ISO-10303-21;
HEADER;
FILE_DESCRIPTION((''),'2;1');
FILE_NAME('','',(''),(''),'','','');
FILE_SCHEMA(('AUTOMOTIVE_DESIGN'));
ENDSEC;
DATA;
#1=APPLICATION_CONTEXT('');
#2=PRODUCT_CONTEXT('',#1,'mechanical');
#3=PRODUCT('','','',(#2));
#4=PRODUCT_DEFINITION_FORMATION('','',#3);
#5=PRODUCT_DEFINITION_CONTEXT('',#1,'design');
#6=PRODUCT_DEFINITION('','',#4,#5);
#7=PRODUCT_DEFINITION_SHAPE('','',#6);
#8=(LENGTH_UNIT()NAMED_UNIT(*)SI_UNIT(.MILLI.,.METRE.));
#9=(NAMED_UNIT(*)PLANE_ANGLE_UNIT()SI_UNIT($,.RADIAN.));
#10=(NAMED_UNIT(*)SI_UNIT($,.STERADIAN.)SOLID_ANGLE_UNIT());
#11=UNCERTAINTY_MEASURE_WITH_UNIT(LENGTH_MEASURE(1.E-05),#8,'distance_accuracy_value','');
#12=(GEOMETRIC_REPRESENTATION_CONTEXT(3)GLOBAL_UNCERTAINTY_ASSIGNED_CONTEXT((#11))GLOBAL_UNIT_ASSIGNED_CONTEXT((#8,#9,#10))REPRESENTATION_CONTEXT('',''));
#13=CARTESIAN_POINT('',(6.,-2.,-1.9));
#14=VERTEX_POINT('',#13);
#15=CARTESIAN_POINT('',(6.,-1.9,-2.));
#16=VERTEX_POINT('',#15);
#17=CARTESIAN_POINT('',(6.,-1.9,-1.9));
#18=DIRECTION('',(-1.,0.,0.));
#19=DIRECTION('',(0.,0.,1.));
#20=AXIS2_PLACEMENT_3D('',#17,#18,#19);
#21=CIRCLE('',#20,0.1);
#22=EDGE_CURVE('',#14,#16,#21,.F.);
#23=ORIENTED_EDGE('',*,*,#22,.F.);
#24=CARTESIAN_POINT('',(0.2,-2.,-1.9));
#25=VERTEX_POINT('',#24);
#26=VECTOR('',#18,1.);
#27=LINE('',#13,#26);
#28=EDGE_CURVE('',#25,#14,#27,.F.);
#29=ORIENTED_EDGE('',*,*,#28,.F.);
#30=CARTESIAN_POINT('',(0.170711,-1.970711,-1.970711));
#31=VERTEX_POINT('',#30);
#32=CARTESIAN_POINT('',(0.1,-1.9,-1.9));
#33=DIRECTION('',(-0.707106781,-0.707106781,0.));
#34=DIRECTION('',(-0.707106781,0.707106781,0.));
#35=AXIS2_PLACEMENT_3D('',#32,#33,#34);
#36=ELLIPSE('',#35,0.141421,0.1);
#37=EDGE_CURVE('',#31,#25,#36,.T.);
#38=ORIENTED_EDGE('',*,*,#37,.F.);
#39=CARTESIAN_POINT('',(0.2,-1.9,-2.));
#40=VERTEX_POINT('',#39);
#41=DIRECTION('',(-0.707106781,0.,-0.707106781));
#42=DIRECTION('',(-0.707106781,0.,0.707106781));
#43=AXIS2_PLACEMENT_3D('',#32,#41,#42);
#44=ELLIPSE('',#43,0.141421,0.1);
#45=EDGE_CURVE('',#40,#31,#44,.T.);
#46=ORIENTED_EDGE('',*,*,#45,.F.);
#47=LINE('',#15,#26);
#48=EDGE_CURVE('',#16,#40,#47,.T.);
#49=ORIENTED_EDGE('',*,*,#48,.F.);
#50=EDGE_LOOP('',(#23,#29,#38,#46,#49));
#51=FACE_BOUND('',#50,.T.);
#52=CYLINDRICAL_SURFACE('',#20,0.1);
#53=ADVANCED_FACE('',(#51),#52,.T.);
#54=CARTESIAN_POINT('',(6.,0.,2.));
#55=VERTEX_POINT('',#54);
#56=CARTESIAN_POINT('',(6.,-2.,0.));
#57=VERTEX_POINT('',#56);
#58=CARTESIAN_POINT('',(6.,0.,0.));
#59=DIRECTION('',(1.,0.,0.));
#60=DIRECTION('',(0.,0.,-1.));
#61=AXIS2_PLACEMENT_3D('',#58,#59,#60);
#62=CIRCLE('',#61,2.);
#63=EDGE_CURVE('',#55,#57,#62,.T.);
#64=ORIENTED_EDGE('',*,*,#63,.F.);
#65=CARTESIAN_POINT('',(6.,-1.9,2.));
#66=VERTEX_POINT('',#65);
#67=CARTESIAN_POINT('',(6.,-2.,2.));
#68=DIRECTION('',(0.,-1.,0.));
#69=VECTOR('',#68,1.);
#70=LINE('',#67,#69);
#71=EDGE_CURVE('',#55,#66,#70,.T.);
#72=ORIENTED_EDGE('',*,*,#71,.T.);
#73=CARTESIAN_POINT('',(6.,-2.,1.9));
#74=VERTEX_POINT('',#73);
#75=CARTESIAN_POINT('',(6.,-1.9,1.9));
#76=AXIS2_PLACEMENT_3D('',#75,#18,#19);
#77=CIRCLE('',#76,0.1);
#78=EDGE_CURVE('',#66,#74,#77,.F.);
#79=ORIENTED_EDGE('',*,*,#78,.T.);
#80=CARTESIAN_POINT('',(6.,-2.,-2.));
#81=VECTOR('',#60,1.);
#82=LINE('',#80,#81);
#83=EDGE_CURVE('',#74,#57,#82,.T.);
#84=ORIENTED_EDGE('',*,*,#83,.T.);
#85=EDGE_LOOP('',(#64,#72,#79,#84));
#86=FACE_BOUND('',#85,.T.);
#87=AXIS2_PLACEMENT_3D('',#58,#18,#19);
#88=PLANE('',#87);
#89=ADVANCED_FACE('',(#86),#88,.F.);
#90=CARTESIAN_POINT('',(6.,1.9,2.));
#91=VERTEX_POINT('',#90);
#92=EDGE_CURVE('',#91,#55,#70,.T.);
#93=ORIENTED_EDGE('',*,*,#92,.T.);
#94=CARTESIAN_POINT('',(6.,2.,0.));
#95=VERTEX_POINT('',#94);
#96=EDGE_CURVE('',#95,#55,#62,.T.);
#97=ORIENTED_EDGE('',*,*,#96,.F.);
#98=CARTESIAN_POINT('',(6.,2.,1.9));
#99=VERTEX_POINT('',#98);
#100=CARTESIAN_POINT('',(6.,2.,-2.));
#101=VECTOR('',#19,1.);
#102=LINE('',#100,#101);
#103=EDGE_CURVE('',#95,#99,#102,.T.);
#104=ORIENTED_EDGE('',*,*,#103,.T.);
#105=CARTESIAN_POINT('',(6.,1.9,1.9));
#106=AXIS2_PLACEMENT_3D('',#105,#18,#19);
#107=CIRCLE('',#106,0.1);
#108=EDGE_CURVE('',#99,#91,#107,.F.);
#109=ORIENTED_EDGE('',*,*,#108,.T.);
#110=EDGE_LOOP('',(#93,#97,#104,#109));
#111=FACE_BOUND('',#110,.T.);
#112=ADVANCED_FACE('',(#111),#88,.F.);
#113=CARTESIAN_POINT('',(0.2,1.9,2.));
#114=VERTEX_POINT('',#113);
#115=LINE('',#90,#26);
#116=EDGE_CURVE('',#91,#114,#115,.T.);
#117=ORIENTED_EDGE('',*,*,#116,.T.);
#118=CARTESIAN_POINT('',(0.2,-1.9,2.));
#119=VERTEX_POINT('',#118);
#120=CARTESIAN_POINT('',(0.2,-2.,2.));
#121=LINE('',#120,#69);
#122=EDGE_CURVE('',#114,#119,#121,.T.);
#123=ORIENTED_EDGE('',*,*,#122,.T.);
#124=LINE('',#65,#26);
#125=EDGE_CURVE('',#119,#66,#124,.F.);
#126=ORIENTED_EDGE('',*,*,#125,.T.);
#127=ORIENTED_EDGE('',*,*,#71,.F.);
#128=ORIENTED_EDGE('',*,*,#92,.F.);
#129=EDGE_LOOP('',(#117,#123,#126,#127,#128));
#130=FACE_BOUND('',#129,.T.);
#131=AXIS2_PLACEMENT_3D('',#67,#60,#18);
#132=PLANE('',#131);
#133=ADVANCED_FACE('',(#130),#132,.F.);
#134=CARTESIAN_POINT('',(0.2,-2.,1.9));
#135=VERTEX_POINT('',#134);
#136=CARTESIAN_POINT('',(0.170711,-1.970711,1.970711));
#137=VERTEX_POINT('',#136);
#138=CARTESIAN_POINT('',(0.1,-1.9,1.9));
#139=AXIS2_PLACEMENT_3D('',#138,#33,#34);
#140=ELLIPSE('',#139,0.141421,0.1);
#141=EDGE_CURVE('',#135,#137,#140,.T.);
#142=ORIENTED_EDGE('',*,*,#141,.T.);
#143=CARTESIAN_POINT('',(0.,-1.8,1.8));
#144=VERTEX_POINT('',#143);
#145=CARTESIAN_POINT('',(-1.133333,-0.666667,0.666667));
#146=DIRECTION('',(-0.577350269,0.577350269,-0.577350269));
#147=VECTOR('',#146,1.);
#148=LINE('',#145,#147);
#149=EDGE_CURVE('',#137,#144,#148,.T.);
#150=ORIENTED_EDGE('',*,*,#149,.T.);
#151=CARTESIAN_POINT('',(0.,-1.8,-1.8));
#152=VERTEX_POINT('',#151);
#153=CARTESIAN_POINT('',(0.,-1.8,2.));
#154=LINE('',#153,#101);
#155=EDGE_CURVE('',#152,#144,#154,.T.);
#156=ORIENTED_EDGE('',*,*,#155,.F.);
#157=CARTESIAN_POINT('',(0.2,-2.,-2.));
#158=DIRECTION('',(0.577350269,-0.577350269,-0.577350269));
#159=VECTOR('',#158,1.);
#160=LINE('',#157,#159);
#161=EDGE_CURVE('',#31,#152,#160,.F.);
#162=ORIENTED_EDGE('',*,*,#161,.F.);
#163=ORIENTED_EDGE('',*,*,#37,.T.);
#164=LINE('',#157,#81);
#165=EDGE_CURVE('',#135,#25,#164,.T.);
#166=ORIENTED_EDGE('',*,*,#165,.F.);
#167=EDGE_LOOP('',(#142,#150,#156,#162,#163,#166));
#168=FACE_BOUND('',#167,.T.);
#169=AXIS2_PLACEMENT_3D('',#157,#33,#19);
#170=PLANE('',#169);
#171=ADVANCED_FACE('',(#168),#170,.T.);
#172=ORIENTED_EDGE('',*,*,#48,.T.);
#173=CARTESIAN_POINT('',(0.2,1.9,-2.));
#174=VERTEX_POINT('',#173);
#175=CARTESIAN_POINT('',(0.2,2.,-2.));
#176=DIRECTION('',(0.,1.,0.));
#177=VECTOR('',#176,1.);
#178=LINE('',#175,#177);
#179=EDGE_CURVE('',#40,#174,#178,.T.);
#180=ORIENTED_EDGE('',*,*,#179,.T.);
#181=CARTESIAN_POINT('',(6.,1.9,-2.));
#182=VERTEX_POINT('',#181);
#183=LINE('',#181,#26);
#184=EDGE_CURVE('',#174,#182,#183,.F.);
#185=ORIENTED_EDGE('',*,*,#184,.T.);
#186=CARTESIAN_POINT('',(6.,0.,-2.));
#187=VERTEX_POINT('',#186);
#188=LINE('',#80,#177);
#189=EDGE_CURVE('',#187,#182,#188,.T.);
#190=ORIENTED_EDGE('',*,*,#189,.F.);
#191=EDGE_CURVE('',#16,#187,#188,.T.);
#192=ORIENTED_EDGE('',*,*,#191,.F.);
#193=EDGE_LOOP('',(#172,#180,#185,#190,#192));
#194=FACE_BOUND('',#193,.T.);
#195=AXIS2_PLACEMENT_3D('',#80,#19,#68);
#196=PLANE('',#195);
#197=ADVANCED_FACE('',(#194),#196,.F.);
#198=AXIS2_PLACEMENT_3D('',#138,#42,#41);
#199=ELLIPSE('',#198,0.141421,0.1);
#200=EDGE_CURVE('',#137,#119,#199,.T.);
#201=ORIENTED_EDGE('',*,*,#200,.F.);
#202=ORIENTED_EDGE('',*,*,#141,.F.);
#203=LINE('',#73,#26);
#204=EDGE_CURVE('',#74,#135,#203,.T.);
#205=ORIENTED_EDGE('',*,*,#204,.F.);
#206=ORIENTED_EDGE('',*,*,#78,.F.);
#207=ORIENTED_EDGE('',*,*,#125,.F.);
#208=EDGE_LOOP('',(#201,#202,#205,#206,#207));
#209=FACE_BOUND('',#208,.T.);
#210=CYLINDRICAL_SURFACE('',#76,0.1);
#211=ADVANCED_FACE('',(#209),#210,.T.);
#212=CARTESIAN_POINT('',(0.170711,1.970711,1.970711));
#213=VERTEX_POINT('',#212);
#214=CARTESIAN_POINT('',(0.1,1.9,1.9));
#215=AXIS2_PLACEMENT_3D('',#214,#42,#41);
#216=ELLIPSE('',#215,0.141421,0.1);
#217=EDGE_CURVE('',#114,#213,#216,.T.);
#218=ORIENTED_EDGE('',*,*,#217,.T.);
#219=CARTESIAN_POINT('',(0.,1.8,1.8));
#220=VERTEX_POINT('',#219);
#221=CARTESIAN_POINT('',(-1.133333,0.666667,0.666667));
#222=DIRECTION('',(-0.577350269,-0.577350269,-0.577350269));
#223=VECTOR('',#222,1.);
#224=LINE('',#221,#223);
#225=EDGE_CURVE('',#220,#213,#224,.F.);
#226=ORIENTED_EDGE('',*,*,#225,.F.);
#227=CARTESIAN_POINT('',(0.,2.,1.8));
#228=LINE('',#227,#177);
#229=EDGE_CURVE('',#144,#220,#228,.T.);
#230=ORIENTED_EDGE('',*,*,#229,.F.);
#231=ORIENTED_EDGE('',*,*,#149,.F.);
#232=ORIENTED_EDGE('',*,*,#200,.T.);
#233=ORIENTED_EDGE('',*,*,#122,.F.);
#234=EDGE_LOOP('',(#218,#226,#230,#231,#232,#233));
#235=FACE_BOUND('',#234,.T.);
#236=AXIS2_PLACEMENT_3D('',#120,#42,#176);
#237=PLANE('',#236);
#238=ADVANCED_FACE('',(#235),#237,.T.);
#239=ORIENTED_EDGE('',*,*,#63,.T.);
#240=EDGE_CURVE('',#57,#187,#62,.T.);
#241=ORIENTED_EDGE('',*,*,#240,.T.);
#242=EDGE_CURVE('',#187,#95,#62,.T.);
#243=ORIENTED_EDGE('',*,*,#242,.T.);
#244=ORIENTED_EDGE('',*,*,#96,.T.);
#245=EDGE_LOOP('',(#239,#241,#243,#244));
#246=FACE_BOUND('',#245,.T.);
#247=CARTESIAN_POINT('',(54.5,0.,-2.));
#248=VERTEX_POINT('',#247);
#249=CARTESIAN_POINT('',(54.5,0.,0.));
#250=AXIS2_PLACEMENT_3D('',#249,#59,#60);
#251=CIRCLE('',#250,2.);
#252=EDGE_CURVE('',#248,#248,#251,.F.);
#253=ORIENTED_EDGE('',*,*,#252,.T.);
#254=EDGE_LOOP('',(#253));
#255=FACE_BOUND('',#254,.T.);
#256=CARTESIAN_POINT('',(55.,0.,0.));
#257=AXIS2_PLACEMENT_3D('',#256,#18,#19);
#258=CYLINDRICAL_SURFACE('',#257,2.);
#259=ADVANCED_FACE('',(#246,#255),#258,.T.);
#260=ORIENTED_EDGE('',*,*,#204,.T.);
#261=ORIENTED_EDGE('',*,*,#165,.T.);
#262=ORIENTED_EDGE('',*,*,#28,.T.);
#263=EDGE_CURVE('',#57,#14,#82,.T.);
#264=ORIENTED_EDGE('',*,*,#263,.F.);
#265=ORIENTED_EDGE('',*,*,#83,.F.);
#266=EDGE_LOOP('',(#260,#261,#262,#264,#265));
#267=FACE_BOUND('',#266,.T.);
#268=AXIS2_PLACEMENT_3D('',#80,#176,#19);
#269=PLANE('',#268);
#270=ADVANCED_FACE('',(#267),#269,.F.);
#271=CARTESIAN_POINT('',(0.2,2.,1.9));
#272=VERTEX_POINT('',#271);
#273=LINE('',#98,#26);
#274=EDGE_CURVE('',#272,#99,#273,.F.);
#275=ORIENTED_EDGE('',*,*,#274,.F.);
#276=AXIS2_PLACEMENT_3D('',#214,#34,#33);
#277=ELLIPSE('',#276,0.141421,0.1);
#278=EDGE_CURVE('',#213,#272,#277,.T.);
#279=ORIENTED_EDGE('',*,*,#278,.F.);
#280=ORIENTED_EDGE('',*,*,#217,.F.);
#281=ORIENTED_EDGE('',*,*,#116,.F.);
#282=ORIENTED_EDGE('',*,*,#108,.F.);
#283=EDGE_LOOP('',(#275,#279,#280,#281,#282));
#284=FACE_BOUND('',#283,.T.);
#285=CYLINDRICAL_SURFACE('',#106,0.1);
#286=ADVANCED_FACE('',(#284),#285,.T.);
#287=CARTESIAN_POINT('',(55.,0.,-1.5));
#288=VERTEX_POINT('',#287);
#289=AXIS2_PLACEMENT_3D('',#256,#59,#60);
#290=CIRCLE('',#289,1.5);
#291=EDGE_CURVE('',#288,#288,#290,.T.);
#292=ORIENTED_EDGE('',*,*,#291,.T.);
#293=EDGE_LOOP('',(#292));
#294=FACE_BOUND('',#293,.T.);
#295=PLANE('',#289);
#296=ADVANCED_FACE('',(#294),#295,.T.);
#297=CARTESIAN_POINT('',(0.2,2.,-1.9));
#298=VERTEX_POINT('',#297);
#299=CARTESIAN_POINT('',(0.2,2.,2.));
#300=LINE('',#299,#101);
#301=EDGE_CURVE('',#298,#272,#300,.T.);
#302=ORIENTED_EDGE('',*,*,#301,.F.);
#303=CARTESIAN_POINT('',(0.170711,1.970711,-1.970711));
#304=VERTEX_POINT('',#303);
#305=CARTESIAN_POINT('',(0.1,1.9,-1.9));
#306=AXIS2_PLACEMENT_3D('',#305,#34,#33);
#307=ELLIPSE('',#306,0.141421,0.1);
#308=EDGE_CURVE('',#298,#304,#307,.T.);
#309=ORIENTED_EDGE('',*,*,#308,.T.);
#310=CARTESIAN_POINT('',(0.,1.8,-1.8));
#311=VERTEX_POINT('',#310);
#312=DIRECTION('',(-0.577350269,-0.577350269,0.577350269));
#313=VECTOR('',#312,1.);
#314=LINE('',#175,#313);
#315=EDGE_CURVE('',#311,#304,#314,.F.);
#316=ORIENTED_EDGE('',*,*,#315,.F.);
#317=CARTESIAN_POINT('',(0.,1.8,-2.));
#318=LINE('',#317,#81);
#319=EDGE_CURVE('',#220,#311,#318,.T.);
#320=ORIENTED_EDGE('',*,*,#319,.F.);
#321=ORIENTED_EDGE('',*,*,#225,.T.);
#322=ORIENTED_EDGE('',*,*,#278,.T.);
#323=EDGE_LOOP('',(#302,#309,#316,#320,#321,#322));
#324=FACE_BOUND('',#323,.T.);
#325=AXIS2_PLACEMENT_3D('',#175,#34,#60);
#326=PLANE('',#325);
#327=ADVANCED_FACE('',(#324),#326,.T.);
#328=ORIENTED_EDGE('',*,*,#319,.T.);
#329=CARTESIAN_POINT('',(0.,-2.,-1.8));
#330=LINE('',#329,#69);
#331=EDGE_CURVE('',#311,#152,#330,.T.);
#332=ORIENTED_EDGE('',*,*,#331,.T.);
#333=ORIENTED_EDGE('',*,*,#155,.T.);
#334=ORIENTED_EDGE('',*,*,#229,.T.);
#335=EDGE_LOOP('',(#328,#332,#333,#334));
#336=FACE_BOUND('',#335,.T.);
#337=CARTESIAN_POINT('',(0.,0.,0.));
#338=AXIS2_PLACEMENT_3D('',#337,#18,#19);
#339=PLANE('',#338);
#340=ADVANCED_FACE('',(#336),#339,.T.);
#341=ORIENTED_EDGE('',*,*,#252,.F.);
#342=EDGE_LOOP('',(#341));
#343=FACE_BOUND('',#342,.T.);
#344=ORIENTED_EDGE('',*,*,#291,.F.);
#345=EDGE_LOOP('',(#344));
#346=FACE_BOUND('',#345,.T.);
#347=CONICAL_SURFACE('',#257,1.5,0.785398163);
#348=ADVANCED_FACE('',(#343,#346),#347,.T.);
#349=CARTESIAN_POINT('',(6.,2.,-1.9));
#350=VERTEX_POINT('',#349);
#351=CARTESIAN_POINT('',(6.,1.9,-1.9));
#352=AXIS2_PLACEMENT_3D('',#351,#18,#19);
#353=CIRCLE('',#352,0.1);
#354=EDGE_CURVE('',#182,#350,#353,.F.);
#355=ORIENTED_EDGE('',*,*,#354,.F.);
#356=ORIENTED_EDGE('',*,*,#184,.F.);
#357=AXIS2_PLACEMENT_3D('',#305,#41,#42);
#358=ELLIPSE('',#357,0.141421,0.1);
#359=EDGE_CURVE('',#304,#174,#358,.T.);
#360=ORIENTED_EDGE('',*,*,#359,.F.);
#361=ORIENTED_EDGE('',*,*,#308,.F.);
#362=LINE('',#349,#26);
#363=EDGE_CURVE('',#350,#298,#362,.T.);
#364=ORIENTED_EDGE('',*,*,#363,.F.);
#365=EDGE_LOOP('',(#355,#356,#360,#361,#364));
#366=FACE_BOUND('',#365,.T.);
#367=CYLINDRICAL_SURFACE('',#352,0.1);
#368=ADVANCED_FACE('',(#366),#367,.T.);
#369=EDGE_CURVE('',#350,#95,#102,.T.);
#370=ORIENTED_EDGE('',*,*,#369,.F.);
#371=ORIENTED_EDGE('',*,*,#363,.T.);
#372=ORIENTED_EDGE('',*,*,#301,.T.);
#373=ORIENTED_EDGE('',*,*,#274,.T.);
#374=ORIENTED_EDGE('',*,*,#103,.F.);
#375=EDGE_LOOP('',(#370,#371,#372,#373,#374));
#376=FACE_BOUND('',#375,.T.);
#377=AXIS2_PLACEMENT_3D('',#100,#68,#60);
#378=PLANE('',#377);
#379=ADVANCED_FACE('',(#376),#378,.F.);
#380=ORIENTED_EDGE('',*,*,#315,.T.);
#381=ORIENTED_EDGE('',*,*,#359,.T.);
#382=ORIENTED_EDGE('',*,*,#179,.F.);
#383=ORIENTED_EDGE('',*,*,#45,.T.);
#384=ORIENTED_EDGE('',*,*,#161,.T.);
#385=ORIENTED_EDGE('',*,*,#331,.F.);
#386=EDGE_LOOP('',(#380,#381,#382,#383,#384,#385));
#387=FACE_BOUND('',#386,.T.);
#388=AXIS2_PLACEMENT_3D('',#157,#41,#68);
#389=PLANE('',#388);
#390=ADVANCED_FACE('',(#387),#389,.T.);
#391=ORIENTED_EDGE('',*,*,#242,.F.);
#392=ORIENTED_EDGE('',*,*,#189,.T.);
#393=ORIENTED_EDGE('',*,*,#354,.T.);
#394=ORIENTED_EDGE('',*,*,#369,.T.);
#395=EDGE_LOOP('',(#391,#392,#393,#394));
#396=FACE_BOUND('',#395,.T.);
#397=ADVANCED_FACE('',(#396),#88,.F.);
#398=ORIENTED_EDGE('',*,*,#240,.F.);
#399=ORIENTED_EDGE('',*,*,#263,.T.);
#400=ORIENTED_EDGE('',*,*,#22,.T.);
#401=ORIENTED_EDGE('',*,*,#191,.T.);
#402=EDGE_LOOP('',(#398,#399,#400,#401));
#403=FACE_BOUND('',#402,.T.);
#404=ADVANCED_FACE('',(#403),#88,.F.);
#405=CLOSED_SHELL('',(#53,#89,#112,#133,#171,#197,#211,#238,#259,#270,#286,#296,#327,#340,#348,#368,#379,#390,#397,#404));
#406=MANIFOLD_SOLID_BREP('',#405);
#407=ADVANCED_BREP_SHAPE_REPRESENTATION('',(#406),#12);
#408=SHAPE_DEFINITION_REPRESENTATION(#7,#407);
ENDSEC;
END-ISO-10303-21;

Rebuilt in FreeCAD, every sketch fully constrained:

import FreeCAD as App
import Part
import Sketcher
from FreeCAD import Vector
Q = App.Units.Quantity


def edges_at(feature, points):
    """Names of the edges that pass closest to the given points."""
    edges = feature.Shape.Edges
    near = lambda p: min(range(len(edges)), key=lambda i: edges[i].distToShape(Part.Vertex(*p))[0])
    return sorted({f"Edge{near(p) + 1}" for p in points})


def add_polygon(sketch, points):
    """Adds a closed chain of lines whose ends are joined by coincident constraints."""
    first, n = sketch.GeometryCount, len(points)
    for a, b in zip(points, points[1:] + points[:1]):
        sketch.addGeometry(Part.LineSegment(App.Vector(*a, 0), App.Vector(*b, 0)), False)
    for i in range(n):
        sketch.addConstraint(Sketcher.Constraint("Coincident", first + i, 2, first + (i + 1) % n, 1))

doc = App.newDocument("Part")
body = doc.addObject("PartDesign::Body", "Body")

sketch1 = body.newObject("Sketcher::SketchObject", "Sketch")
sketch1.AttachmentSupport = (doc.getObject("YZ_Plane"), [""])
sketch1.MapMode = "FlatFace"
add_polygon(sketch1, [(2, 2), (-2, 2), (-2, -2), (2, -2)])
sketch1.addConstraint([
    Sketcher.Constraint("Horizontal", 0),
    Sketcher.Constraint("Vertical", 1),
    Sketcher.Constraint("Horizontal", 2),
    Sketcher.Constraint("Vertical", 3),
    Sketcher.Constraint("Symmetric", 0, 2, 2, 2, -1, 1),
    Sketcher.Constraint("Equal", 2, 1),
    Sketcher.Constraint("DistanceX", 0, 2, 0, 1, Q("4 mm")),
])
pad1 = body.newObject("PartDesign::Pad", "Pad")
pad1.Profile = sketch1
pad1.Length = 6

sketch2 = body.newObject("Sketcher::SketchObject", "Sketch001")
sketch2.AttachmentSupport = (doc.getObject("YZ_Plane"), [""])
sketch2.MapMode = "FlatFace"
sketch2.AttachmentOffset = App.Placement(Vector(0, 0, 6), App.Rotation())
sketch2.addGeometry(Part.Circle(Vector(0, 0, 0), Vector(0, 0, 1), 2), False)
sketch2.addConstraint([
    Sketcher.Constraint("Coincident", 0, 3, -1, 1),
    Sketcher.Constraint("Diameter", 0, Q("4 mm")),
])
pad2 = body.newObject("PartDesign::Pad", "Pad001")
pad2.Profile = sketch2
pad2.Length = 49
doc.recompute()

chamfer = body.newObject("PartDesign::Chamfer", "Chamfer")
chamfer.Base = (pad2, edges_at(pad2, [(55, 0, 2)]))
chamfer.Size = 0.5
doc.recompute()

chamfer2 = body.newObject("PartDesign::Chamfer", "Chamfer001")
chamfer2.Base = (chamfer, edges_at(chamfer, [
    (0, 0, 2),
    (0, 2, 0),
    (0, 0, -2),
    (0, -2, 0),
]))
chamfer2.Size = 0.2
doc.recompute()

fillet = body.newObject("PartDesign::Fillet", "Fillet")
fillet.Base = (chamfer2, edges_at(chamfer2, [
    (3.1, -2, 2),
    (3.1, 2, 2),
    (3.1, 2, -2),
    (3.1, -2, -2),
]))
fillet.Radius = 0.1

doc.recompute()
